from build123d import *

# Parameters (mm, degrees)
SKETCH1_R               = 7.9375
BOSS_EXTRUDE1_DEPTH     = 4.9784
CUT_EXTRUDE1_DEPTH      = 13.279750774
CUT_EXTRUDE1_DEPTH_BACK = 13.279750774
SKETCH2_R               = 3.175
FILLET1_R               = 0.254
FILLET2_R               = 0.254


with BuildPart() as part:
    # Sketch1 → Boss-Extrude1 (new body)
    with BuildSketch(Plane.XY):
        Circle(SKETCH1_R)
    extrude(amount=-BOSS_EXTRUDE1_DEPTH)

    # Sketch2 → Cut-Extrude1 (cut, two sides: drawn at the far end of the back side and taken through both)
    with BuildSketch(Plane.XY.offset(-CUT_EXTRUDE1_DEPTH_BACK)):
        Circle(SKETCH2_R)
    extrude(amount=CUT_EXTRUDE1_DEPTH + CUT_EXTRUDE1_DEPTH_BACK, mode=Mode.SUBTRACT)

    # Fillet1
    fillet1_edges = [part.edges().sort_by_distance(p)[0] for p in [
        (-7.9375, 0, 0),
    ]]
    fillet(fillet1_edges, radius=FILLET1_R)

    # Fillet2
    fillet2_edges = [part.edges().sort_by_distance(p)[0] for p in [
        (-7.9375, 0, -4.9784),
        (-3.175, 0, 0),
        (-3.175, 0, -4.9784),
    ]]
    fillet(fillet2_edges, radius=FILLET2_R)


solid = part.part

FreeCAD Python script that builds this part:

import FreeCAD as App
import Part
import Sketcher
Q = App.Units.Quantity


def edges_at(feature, points):
    """Names of the edges that pass closest to the given points."""
    edges = feature.Shape.Edges
    near = lambda p: min(range(len(edges)), key=lambda i: edges[i].distToShape(Part.Vertex(*p))[0])
    return sorted({f"Edge{near(p) + 1}" for p in points})

doc = App.newDocument("Part")
params = doc.addObject("Spreadsheet::Sheet", "Params")
for row, (alias, value) in enumerate([
    ("sketch1_diameter", "0.625 in"),
    ("pad1_length", "0.196 in"),
    ("sketch2_diameter", "0.25 in"),
    ("fillet_radius", "0.01 in"),
    ("fillet2_radius", "0.01 in"),
], start=1):
    params.set(f"A{row}", alias)
    params.set(f"B{row}", "=" + value)
    params.setAlias(f"B{row}", alias)

body = doc.addObject("PartDesign::Body", "Body")

sketch1 = doc.addObject("Sketcher::SketchObject", "Sketch")
body.addObject(sketch1)
sketch1.AttachmentSupport = (doc.XY_Plane, [""])
sketch1.MapMode = "FlatFace"
sketch1.addGeometry(Part.Circle(App.Vector(0, 0, 0), App.Vector(0, 0, 1), 8), False)
sketch1.addConstraint(Sketcher.Constraint("Coincident", 0, 3, -1, 1))
sketch1.addConstraint(Sketcher.Constraint("Diameter", 0, Q("0.625 in")))
sketch1.setExpression("Constraints[1]", "Params.sketch1_diameter")
pad1 = doc.addObject("PartDesign::Pad", "Pad")
body.addObject(pad1)
pad1.Profile = sketch1
pad1.setExpression("Length", "Params.pad1_length")
pad1.Reversed = True

sketch2 = doc.addObject("Sketcher::SketchObject", "Sketch001")
body.addObject(sketch2)
sketch2.AttachmentSupport = (doc.XY_Plane, [""])
sketch2.MapMode = "FlatFace"
sketch2.addGeometry(Part.Circle(App.Vector(0, 0, 0), App.Vector(0, 0, 1), 3.2), False)
sketch2.addConstraint(Sketcher.Constraint("Coincident", 0, 3, -1, 1))
sketch2.addConstraint(Sketcher.Constraint("Diameter", 0, Q("0.25 in")))
sketch2.setExpression("Constraints[1]", "Params.sketch2_diameter")
pocket1 = doc.addObject("PartDesign::Pocket", "Pocket")
body.addObject(pocket1)
pocket1.Profile = sketch2
pocket1.Type = "ThroughAll"
pocket1.Midplane = True
doc.recompute()

fillet = doc.addObject("PartDesign::Fillet", "Fillet")
body.addObject(fillet)
fillet.Base = (pocket1, edges_at(pocket1, [(-7.938, 0, 0)]))
fillet.setExpression("Radius", "Params.fillet_radius")
doc.recompute()

fillet2 = doc.addObject("PartDesign::Fillet", "Fillet001")
body.addObject(fillet2)
fillet2.Base = (fillet, edges_at(fillet, [(-7.938, 0, -4.978), (-3.175, 0, 0), (-3.175, 0, -4.978)]))
fillet2.setExpression("Radius", "Params.fillet2_radius")

doc.recompute()
